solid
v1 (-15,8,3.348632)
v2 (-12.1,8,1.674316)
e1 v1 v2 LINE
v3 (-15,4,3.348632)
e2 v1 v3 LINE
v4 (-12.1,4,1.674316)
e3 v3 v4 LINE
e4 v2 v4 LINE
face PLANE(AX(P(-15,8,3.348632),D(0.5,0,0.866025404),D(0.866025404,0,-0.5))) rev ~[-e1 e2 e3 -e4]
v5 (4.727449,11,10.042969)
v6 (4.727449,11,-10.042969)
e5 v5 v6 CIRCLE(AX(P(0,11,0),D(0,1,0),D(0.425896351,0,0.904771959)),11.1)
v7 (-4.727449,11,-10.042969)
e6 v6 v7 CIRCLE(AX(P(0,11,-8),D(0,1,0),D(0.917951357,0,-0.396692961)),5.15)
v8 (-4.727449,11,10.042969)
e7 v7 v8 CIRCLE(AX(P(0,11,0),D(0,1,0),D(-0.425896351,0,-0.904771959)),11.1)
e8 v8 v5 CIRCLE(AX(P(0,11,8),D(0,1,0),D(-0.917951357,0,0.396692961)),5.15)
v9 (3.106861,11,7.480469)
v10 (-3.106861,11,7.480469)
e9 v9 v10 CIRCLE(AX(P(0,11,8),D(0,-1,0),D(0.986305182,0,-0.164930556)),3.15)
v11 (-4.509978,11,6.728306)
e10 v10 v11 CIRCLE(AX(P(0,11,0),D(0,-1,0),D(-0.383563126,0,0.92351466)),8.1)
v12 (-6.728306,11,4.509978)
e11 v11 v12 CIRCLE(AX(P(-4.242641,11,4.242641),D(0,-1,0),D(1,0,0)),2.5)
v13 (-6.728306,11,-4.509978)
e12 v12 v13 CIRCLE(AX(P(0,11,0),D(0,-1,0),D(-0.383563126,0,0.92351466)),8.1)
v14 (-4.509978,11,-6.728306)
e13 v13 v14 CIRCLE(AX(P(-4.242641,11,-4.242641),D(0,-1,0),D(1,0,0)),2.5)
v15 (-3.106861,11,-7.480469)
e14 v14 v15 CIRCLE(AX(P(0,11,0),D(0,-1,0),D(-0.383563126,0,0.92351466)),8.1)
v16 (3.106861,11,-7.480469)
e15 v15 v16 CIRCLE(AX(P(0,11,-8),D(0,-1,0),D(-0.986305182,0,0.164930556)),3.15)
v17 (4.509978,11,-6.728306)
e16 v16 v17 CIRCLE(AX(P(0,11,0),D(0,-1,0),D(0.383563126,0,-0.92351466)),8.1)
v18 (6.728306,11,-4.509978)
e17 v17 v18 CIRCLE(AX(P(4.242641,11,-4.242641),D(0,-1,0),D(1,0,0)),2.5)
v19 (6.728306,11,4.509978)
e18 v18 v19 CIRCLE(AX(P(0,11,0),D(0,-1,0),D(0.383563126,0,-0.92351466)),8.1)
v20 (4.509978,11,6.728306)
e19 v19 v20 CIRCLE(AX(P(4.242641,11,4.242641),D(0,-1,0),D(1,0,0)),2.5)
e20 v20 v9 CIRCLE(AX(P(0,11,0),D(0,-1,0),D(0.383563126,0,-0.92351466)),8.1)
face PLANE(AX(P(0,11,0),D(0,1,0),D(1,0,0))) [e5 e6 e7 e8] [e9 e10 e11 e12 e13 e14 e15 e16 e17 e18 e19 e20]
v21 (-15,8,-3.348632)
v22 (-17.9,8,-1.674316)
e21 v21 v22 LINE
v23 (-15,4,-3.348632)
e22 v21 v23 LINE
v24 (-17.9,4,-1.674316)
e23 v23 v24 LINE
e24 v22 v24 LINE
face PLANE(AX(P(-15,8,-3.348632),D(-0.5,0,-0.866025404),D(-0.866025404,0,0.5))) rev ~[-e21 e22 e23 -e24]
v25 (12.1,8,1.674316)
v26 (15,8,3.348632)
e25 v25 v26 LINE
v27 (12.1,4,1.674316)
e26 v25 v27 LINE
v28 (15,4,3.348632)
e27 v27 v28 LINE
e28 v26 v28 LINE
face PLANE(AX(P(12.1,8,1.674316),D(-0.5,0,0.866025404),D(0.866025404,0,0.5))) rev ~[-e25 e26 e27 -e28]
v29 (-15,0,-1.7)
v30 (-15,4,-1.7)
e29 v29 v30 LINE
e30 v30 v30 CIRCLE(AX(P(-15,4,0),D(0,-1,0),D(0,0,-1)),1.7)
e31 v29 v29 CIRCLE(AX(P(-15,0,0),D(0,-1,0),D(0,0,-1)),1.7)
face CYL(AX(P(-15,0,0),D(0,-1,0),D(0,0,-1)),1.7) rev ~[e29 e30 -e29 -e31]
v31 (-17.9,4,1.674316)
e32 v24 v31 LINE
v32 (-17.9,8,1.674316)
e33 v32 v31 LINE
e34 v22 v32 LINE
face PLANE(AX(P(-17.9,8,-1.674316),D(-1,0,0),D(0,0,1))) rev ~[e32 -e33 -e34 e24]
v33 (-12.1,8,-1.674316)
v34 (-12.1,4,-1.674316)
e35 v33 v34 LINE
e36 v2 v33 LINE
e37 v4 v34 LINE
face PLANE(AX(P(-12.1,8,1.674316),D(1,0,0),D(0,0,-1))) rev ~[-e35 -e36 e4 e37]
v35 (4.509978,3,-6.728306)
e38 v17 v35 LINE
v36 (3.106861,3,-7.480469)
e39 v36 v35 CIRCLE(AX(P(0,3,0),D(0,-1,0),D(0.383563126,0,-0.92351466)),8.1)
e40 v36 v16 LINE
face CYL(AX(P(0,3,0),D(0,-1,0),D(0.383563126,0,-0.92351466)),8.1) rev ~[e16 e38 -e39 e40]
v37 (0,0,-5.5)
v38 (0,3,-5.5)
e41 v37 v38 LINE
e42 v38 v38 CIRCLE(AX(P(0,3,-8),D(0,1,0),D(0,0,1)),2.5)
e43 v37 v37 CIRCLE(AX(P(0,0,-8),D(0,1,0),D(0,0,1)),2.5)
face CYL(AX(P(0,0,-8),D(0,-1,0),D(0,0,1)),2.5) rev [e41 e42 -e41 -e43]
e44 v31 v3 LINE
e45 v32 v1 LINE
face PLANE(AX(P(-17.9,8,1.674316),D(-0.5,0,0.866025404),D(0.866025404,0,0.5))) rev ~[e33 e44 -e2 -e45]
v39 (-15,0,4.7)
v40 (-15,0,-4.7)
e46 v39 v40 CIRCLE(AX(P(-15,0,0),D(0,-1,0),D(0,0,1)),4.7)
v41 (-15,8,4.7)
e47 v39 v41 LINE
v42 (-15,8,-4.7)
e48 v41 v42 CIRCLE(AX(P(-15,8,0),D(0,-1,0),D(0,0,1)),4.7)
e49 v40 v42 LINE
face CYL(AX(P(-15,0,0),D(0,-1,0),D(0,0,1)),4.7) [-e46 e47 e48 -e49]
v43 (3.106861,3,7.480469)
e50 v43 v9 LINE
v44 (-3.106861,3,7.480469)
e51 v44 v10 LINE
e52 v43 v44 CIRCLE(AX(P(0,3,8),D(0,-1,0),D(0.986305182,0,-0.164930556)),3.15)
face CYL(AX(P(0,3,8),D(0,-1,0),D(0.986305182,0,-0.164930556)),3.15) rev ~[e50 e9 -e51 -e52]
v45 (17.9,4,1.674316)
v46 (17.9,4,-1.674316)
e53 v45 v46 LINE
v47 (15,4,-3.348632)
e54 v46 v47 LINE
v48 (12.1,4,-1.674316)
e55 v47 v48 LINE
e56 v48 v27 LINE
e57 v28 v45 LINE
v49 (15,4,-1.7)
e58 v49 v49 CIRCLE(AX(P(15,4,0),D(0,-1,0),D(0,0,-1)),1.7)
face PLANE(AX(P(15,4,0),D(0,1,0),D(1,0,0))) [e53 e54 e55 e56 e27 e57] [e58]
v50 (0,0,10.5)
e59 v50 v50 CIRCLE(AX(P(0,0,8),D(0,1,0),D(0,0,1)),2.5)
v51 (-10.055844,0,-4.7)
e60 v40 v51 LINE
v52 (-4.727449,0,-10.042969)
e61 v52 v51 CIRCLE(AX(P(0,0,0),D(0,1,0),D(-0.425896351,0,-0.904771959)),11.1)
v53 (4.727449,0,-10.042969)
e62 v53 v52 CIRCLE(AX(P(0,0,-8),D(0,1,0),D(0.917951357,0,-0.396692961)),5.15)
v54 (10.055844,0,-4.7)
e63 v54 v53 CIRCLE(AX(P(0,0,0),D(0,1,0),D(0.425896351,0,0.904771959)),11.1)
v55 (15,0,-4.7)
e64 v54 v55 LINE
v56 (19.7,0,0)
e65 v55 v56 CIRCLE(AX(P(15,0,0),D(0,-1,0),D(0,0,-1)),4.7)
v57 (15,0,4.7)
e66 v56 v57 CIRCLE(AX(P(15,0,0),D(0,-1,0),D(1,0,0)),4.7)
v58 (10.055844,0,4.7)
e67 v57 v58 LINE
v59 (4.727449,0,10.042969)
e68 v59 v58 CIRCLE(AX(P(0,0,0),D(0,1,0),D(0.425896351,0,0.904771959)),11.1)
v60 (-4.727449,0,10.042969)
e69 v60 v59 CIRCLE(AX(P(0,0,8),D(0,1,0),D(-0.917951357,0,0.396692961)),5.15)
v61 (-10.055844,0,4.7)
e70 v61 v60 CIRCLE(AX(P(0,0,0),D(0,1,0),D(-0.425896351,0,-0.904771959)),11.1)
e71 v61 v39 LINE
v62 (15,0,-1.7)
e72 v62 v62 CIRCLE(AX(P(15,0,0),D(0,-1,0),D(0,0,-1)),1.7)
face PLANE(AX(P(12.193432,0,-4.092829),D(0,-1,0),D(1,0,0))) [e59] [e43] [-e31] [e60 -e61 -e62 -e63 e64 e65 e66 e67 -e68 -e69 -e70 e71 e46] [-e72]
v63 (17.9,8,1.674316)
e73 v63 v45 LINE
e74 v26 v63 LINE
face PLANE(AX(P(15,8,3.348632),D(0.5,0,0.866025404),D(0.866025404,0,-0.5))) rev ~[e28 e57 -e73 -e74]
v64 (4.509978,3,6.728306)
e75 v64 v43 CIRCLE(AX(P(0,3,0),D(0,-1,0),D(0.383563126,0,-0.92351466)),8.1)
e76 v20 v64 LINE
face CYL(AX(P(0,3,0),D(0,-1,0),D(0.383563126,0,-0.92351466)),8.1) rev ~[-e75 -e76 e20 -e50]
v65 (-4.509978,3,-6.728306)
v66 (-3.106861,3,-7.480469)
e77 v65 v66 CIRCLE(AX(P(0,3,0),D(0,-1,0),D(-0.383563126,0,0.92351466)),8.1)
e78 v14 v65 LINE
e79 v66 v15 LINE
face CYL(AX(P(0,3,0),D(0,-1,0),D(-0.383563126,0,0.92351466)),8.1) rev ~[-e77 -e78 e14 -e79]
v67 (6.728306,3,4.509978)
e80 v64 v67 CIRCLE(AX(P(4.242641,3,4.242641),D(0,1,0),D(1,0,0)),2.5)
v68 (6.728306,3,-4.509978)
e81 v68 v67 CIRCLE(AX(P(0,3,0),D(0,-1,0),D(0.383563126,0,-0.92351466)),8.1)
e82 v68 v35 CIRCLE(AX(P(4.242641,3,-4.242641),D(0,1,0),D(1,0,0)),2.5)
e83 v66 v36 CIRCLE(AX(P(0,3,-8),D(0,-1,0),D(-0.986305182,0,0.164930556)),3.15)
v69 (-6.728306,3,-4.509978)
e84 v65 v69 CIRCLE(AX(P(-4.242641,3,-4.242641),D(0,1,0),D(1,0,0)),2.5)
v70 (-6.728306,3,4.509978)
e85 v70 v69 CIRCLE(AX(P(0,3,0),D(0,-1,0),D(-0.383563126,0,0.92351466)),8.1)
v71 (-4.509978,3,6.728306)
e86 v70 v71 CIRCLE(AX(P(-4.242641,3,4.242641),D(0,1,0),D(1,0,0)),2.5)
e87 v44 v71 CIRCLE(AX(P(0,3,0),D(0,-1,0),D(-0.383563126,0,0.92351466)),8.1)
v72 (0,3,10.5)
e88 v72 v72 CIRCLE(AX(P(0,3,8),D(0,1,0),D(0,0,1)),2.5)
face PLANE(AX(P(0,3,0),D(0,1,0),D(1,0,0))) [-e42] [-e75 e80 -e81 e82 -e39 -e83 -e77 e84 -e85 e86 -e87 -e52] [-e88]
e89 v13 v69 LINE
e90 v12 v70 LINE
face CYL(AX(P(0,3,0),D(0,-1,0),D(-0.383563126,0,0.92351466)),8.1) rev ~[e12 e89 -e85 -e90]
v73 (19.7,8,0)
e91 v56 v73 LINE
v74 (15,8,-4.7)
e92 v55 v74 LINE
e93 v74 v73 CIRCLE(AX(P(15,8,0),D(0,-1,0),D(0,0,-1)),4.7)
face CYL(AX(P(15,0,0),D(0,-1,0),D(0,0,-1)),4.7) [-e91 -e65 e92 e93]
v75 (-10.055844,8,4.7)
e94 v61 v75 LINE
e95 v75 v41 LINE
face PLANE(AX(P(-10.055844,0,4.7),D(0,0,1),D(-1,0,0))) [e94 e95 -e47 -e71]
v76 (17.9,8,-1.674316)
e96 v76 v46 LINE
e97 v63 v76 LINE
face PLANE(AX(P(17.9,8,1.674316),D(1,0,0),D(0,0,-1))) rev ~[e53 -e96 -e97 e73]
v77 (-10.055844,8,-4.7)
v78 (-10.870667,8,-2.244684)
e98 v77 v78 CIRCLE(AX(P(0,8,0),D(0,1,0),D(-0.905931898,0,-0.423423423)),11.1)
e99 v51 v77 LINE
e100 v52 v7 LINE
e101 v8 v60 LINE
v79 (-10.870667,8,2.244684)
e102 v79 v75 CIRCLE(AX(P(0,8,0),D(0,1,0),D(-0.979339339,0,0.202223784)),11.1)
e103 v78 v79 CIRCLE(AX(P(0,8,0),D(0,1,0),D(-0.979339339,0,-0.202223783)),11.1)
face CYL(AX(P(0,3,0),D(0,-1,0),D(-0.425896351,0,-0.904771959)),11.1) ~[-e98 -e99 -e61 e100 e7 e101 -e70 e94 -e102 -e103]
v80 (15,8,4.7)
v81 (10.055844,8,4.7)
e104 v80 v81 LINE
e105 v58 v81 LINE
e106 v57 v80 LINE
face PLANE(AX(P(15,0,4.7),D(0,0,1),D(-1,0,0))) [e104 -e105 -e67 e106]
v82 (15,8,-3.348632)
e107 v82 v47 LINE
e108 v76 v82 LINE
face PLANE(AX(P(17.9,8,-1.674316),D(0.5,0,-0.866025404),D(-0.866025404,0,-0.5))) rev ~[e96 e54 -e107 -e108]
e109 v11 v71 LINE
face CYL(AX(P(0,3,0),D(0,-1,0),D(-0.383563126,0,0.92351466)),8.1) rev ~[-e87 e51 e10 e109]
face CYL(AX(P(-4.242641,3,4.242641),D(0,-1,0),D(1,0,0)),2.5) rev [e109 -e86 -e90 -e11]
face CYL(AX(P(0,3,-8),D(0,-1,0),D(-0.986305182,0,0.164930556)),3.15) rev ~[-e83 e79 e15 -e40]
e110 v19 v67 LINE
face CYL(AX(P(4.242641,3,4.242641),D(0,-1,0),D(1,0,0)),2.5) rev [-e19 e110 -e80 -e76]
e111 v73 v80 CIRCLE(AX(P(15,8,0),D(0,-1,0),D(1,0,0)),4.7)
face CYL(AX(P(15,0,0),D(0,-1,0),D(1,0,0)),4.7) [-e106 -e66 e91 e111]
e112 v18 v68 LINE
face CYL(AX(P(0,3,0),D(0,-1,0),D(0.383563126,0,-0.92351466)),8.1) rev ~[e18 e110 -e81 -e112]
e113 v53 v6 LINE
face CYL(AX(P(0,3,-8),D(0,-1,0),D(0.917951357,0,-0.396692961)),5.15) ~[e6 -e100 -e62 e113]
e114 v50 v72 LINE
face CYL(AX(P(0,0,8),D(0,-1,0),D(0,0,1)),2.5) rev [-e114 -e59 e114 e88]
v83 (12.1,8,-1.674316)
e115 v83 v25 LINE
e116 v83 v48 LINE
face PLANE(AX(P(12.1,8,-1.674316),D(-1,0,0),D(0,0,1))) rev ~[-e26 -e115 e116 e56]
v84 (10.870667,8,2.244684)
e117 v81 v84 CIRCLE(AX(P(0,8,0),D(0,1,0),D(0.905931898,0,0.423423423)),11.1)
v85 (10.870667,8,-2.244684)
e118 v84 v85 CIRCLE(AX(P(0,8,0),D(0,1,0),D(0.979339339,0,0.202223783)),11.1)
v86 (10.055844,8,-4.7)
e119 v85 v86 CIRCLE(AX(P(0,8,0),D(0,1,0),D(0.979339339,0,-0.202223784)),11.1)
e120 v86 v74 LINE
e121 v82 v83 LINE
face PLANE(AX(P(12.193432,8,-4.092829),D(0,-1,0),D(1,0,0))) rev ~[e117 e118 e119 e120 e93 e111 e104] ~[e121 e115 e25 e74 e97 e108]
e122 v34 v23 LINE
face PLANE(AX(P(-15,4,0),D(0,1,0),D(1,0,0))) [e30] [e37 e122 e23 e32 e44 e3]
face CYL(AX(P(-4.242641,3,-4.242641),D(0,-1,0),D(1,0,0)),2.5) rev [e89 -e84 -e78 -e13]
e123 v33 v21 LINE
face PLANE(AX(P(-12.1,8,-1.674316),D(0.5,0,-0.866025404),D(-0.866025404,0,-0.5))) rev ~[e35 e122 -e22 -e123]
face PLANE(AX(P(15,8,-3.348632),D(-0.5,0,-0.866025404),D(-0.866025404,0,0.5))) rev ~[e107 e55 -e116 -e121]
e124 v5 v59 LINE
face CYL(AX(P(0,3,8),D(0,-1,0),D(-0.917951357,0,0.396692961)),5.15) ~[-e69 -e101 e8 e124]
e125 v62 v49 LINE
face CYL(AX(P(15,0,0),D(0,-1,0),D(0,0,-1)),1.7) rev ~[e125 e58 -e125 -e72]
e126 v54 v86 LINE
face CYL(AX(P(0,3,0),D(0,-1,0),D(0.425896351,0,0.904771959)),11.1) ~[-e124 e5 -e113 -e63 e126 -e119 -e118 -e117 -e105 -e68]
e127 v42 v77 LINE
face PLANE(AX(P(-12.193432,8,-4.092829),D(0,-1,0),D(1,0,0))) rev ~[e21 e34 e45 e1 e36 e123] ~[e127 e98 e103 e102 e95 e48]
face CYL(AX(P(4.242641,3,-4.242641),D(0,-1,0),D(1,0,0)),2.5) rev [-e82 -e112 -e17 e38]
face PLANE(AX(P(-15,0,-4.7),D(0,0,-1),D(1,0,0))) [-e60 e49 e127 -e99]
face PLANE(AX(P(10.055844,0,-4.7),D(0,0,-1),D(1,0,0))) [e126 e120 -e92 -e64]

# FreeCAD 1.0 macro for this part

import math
import FreeCAD as App
import Part
import Sketcher

V = App.Vector
Q = App.Units.Quantity


def add_polygon(sketch, points):
    """Adds a closed chain of lines whose ends are joined by coincident constraints."""
    first, n = sketch.GeometryCount, len(points)
    for a, b in zip(points, points[1:] + points[:1]):
        sketch.addGeometry(Part.LineSegment(App.Vector(*a, 0), App.Vector(*b, 0)), False)
    for i in range(n):
        sketch.addConstraint(Sketcher.Constraint("Coincident", first + i, 2, first + (i + 1) % n, 1))

doc = App.newDocument("Part")
body = doc.addObject("PartDesign::Body", "Body")

sketch1 = doc.addObject("Sketcher::SketchObject", "Sketch")
body.addObject(sketch1)
sketch1.AttachmentSupport = (doc.XZ_Plane, [""])
sketch1.MapMode = "FlatFace"
sketch1.addGeometry([
    Part.ArcOfCircle(Part.Circle(V(0, -8, 0), V(0, 0, 1), 5.2), math.radians(-157), math.radians(-23)),
    Part.ArcOfCircle(Part.Circle(V(0, 0, 0), V(0, 0, 1), 11.1), math.radians(115), math.radians(245)),
    Part.ArcOfCircle(Part.Circle(V(0, 8, 0), V(0, 0, 1), 5.2), math.radians(23), math.radians(157)),
    Part.ArcOfCircle(Part.Circle(V(0, 0, 0), V(0, 0, 1), 11.1), math.radians(-65), math.radians(65)),
    Part.Circle(V(0, 8, 0), V(0, 0, 1), 2.5),
    Part.Circle(V(0, -8, 0), V(0, 0, 1), 2.5),
], False)
sketch1.addConstraint([
    Sketcher.Constraint("Coincident", 0, 1, 1, 2),
    Sketcher.Constraint("Coincident", 1, 1, 2, 2),
    Sketcher.Constraint("Coincident", 2, 1, 3, 2),
    Sketcher.Constraint("Coincident", 3, 1, 0, 2),
    Sketcher.Constraint("Coincident", 1, 3, -1, 1),
    Sketcher.Constraint("Coincident", 3, 3, -1, 1),
    Sketcher.Constraint("Coincident", 4, 3, 2, 3),
    Sketcher.Constraint("Coincident", 5, 3, 0, 3),
    Sketcher.Constraint("Equal", 0, 2),
    Sketcher.Constraint("Equal", 1, 3),
    Sketcher.Constraint("Equal", 4, 5),
    Sketcher.Constraint("Symmetric", 0, 3, 2, 3, -1, 1),
    Sketcher.Constraint("PointOnObject", 0, 3, -2),
    Sketcher.Constraint("Diameter", 4, 5.0),
    Sketcher.Constraint("Radius", 1, 11.1),
    Sketcher.Constraint("Radius", 0, 5.15),
    Sketcher.Constraint("DistanceY", 0, 3, -1, 1, 8.0),
])
pad1 = doc.addObject("PartDesign::Pad", "Pad")
body.addObject(pad1)
pad1.Profile = sketch1
pad1.Length = 3
pad1.Reversed = True

sketch2 = doc.addObject("Sketcher::SketchObject", "Sketch001")
body.addObject(sketch2)
sketch2.AttachmentSupport = (doc.XZ_Plane, [""])
sketch2.MapMode = "FlatFace"
sketch2.AttachmentOffset = App.Placement(V(0, 0, -3), App.Rotation())
sketch2.addGeometry([
    Part.ArcOfCircle(Part.Circle(V(0, 0, 0), V(0, 0, 1), 11.1), math.radians(-65), math.radians(65)),
    Part.ArcOfCircle(Part.Circle(V(0, -8, 0), V(0, 0, 1), 5.2), math.radians(-157), math.radians(-23)),
    Part.ArcOfCircle(Part.Circle(V(0, 0, 0), V(0, 0, 1), 11.1), math.radians(115), math.radians(245)),
    Part.ArcOfCircle(Part.Circle(V(0, 8, 0), V(0, 0, 1), 5.2), math.radians(23), math.radians(157)),
    Part.ArcOfCircle(Part.Circle(V(0, -8, 0), V(0, 0, 1), 3.1), math.radians(171), math.radians(369)),
    Part.ArcOfCircle(Part.Circle(V(0, 0, 0), V(0, 0, 1), 8.1), math.radians(-67), math.radians(67)),
    Part.ArcOfCircle(Part.Circle(V(0, 8, 0), V(0, 0, 1), 3.1), math.radians(-9), math.radians(189)),
    Part.ArcOfCircle(Part.Circle(V(0, 0, 0), V(0, 0, 1), 8.1), math.radians(113), math.radians(247)),
], False)
sketch2.addConstraint([
    Sketcher.Constraint("Coincident", 0, 1, 1, 2),
    Sketcher.Constraint("Coincident", 1, 1, 2, 2),
    Sketcher.Constraint("Coincident", 2, 1, 3, 2),
    Sketcher.Constraint("Coincident", 3, 1, 0, 2),
    Sketcher.Constraint("Coincident", 4, 2, 5, 1),
    Sketcher.Constraint("Coincident", 5, 2, 6, 1),
    Sketcher.Constraint("Coincident", 6, 2, 7, 1),
    Sketcher.Constraint("Coincident", 7, 2, 4, 1),
    Sketcher.Constraint("Coincident", 0, 3, -1, 1),
    Sketcher.Constraint("Coincident", 2, 3, -1, 1),
    Sketcher.Constraint("Coincident", 5, 3, -1, 1),
    Sketcher.Constraint("Coincident", 7, 3, -1, 1),
    Sketcher.Constraint("Coincident", 4, 3, 1, 3),
    Sketcher.Constraint("Coincident", 6, 3, 3, 3),
    Sketcher.Constraint("Equal", 0, 2),
    Sketcher.Constraint("Equal", 1, 3),
    Sketcher.Constraint("Equal", 4, 6),
    Sketcher.Constraint("Equal", 5, 7),
    Sketcher.Constraint("Symmetric", 1, 3, 3, 3, -1, 1),
    Sketcher.Constraint("PointOnObject", 1, 3, -2),
    Sketcher.Constraint("Radius", 0, 11.1),
    Sketcher.Constraint("Radius", 5, 8.1),
    Sketcher.Constraint("Radius", 1, 5.15),
    Sketcher.Constraint("Radius", 4, 3.15),
    Sketcher.Constraint("DistanceY", 1, 3, -1, 1, 8.0),
])
pad2 = doc.addObject("PartDesign::Pad", "Pad001")
body.addObject(pad2)
pad2.Profile = sketch2
pad2.Length = 8
pad2.Reversed = True

sketch3 = doc.addObject("Sketcher::SketchObject", "Sketch002")
body.addObject(sketch3)
sketch3.AttachmentSupport = (doc.XZ_Plane, [""])
sketch3.MapMode = "FlatFace"
sketch3.addGeometry([
    Part.LineSegment(V(10.1, -4.7, 0), V(15, -4.7, 0)),
    Part.ArcOfCircle(Part.Circle(V(15, 0, 0), V(0, 0, 1), 4.7), math.radians(-90), math.radians(0)),
    Part.ArcOfCircle(Part.Circle(V(15, 0, 0), V(0, 0, 1), 4.7), math.radians(0), math.radians(90)),
    Part.LineSegment(V(15, 4.7, 0), V(10.1, 4.7, 0)),
    Part.ArcOfCircle(Part.Circle(V(0, 0, 0), V(0, 0, 1), 11.1), math.radians(11.67), math.radians(25.05)),
    Part.ArcOfCircle(Part.Circle(V(15, 0, 0), V(0, 0, 1), 4.7), math.radians(151), math.radians(209)),
    Part.ArcOfCircle(Part.Circle(V(0, 0, 0), V(0, 0, 1), 11.1), math.radians(-25.05), math.radians(-11.67)),
    Part.Circle(V(15, 0, 0), V(0, 0, 1), 1.7),
    Part.ArcOfCircle(Part.Circle(V(-15, 0, 0), V(0, 0, 1), 4.7), math.radians(90), math.radians(270)),
    Part.LineSegment(V(-15, -4.7, 0), V(-10.1, -4.7, 0)),
    Part.ArcOfCircle(Part.Circle(V(0, 0, 0), V(0, 0, 1), 11.1), math.radians(-168.33), math.radians(-154.95)),
    Part.ArcOfCircle(Part.Circle(V(-15, 0, 0), V(0, 0, 1), 4.7), math.radians(-29), math.radians(0)),
    Part.ArcOfCircle(Part.Circle(V(-15, 0, 0), V(0, 0, 1), 4.7), math.radians(0), math.radians(29)),
    Part.ArcOfCircle(Part.Circle(V(0, 0, 0), V(0, 0, 1), 11.1), math.radians(154.95), math.radians(168.33)),
    Part.LineSegment(V(-10.1, 4.7, 0), V(-15, 4.7, 0)),
    Part.Circle(V(-15, 0, 0), V(0, 0, 1), 1.7),
], False)
sketch3.addConstraint([
    Sketcher.Constraint("Tangent", 0, 2, 1, 1),
    Sketcher.Constraint("Tangent", 1, 2, 2, 1),
    Sketcher.Constraint("Tangent", 2, 2, 3, 1),
    Sketcher.Constraint("Coincident", 3, 2, 4, 2),
    Sketcher.Constraint("Coincident", 4, 1, 5, 1),
    Sketcher.Constraint("Coincident", 5, 2, 6, 2),
    Sketcher.Constraint("Coincident", 6, 1, 0, 1),
    Sketcher.Constraint("Tangent", 8, 2, 9, 1),
    Sketcher.Constraint("Coincident", 9, 2, 10, 2),
    Sketcher.Constraint("Coincident", 10, 1, 11, 1),
    Sketcher.Constraint("Tangent", 11, 2, 12, 1),
    Sketcher.Constraint("Coincident", 12, 2, 13, 2),
    Sketcher.Constraint("Coincident", 13, 1, 14, 1),
    Sketcher.Constraint("Tangent", 14, 2, 8, 1),
    Sketcher.Constraint("Horizontal", 0),
    Sketcher.Constraint("Horizontal", 3),
    Sketcher.Constraint("Horizontal", 9),
    Sketcher.Constraint("Horizontal", 14),
    Sketcher.Constraint("Coincident", 4, 3, -1, 1),
    Sketcher.Constraint("Coincident", 6, 3, -1, 1),
    Sketcher.Constraint("Coincident", 10, 3, -1, 1),
    Sketcher.Constraint("Coincident", 13, 3, -1, 1),
    Sketcher.Constraint("Coincident", 5, 3, 1, 3),
    Sketcher.Constraint("Coincident", 7, 3, 1, 3),
    Sketcher.Constraint("Coincident", 11, 3, 8, 3),
    Sketcher.Constraint("Coincident", 15, 3, 8, 3),
    Sketcher.Constraint("Equal", 1, 2),
    Sketcher.Constraint("Equal", 2, 5),
    Sketcher.Constraint("Equal", 4, 6),
    Sketcher.Constraint("Equal", 5, 8),
    Sketcher.Constraint("Equal", 6, 10),
    Sketcher.Constraint("Equal", 8, 11),
    Sketcher.Constraint("Equal", 11, 12),
    Sketcher.Constraint("Equal", 10, 13),
    Sketcher.Constraint("Equal", 7, 15),
    Sketcher.Constraint("Symmetric", 1, 3, 8, 3, -1, 1),
    Sketcher.Constraint("PointOnObject", 1, 3, -1),
    Sketcher.Constraint("PointOnObject", 1, 2, -1),
    Sketcher.Constraint("PointOnObject", 11, 2, -1),
    Sketcher.Constraint("Diameter", 7, 3.4),
    Sketcher.Constraint("Radius", 1, 4.7),
    Sketcher.Constraint("Radius", 4, 11.1),
    Sketcher.Constraint("DistanceX", -1, 1, 1, 3, 15.0),
])
pad3 = doc.addObject("PartDesign::Pad", "Pad002")
body.addObject(pad3)
pad3.Profile = sketch3
pad3.Length = 8
pad3.Reversed = True

sketch4 = doc.addObject("Sketcher::SketchObject", "Sketch003")
body.addObject(sketch4)
sketch4.AttachmentSupport = (doc.XZ_Plane, [""])
sketch4.MapMode = "FlatFace"
sketch4.AttachmentOffset = App.Placement(V(0, 0, -8), App.Rotation())
add_polygon(sketch4, [(-15, 3.3), (-12.1, 1.7), (-12.1, -1.7), (-15, -3.3), (-17.9, -1.7), (-17.9, 1.7)])
add_polygon(sketch4, [(15, 3.3), (17.9, 1.7), (17.9, -1.7), (15, -3.3), (12.1, -1.7), (12.1, 1.7)])
sketch4.addConstraint([
    Sketcher.Constraint("Vertical", 1),
    Sketcher.Constraint("Vertical", 4),
    Sketcher.Constraint("Vertical", 7),
    Sketcher.Constraint("Vertical", 10),
    Sketcher.Constraint("Symmetric", 3, 2, 6, 2, -1, 1),
    Sketcher.Constraint("Symmetric", 5, 2, 8, 2, -1, 1),
    Sketcher.Constraint("Symmetric", 0, 2, 9, 2, -1, 1),
    Sketcher.Constraint("Symmetric", 2, 2, 11, 2, -1, 1),
    Sketcher.Constraint("Symmetric", 2, 2, 8, 2, -2),
    Sketcher.Constraint("Parallel", 0, 3),
    Sketcher.Constraint("Parallel", 2, 5),
    Sketcher.Constraint("Parallel", 5, 8),
    Sketcher.Constraint("Parallel", 8, 11),
    Sketcher.Constraint("Horizontal", 1, 2, 3, 2),
    Sketcher.Constraint("Horizontal", 0, 2, 4, 2),
    Sketcher.Constraint("Angle", 0, Q("-30 deg")),
    Sketcher.Constraint("DistanceX", 2, 2, -1, 1, 15.0),
    Sketcher.Constraint("DistanceX", 0, 2, -1, 1, 12.1),
    Sketcher.Constraint("DistanceY", 1, 2, 1, 1, 3.348632),
])
pocket1 = doc.addObject("PartDesign::Pocket", "Pocket")
body.addObject(pocket1)
pocket1.Profile = sketch4
pocket1.Length = 4
pocket1.Reversed = True

sketch5 = doc.addObject("Sketcher::SketchObject", "Sketch004")
body.addObject(sketch5)
sketch5.AttachmentSupport = (doc.XZ_Plane, [""])
sketch5.MapMode = "FlatFace"
sketch5.AttachmentOffset = App.Placement(V(0, 0, -3), App.Rotation())
sketch5.addGeometry([
    Part.Circle(V(4.2, -4.2, 0), V(0, 0, 1), 2.5),
    Part.Circle(V(4.2, 4.2, 0), V(0, 0, 1), 2.5),
    Part.Circle(V(-4.2, 4.2, 0), V(0, 0, 1), 2.5),
    Part.Circle(V(-4.2, -4.2, 0), V(0, 0, 1), 2.5),
], False)
sketch5.addConstraint([
    Sketcher.Constraint("Equal", 0, 1),
    Sketcher.Constraint("Equal", 1, 2),
    Sketcher.Constraint("Equal", 2, 3),
    Sketcher.Constraint("Symmetric", 0, 3, 2, 3, -1, 1),
    Sketcher.Constraint("Symmetric", 1, 3, 3, 3, -1, 1),
    Sketcher.Constraint("Symmetric", 1, 3, 2, 3, -2),
    Sketcher.Constraint("Diameter", 0, 5.0),
    Sketcher.Constraint("DistanceX", -1, 1, 0, 3, 4.242641),
    Sketcher.Constraint("DistanceY", 0, 3, -1, 1, 4.242641),
])
pocket2 = doc.addObject("PartDesign::Pocket", "Pocket001")
body.addObject(pocket2)
pocket2.Profile = sketch5
pocket2.Length = 10

doc.recompute()
